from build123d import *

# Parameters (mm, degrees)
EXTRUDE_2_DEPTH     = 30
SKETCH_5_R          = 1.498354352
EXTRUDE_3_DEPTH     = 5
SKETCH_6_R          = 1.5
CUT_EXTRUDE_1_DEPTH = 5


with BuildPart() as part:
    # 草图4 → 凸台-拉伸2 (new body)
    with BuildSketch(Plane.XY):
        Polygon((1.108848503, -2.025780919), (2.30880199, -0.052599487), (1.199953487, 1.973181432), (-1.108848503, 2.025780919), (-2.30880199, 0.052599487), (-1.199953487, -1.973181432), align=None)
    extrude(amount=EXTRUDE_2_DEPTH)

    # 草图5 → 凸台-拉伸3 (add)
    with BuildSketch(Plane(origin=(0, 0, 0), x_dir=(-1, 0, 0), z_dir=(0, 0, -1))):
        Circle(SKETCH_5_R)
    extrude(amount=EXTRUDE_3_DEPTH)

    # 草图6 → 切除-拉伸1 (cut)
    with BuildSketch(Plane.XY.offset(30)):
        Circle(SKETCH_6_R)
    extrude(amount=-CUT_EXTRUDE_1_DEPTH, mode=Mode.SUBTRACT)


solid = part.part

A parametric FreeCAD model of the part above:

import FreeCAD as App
import Part
import Sketcher
from FreeCAD import Vector

doc = App.newDocument("Part")
body = doc.addObject("PartDesign::Body", "Body")

# Sketch on XY plane
sketch1 = body.newObject("Sketcher::SketchObject", "Sketch")
sketch1.AttachmentSupport = (doc.getObject("XY_Plane"), [""])
sketch1.MapMode = "FlatFace"
sketch1.addGeometry([
    Part.LineSegment(Vector(1.1, -2, 0), Vector(2.3, -0.1, 0)),  # 0
    Part.LineSegment(Vector(2.3, -0.1, 0), Vector(1.2, 2, 0)),  # 1
    Part.LineSegment(Vector(1.2, 2, 0), Vector(-1.1, 2, 0)),  # 2
    Part.LineSegment(Vector(-1.1, 2, 0), Vector(-2.3, 0.1, 0)),  # 3
    Part.LineSegment(Vector(-2.3, 0.1, 0), Vector(-1.2, -2, 0)),  # 4
    Part.LineSegment(Vector(-1.2, -2, 0), Vector(1.1, -2, 0)),  # 5
], False)
sketch1.addConstraint([
    Sketcher.Constraint("Coincident", 0, 2, 1, 1),
    Sketcher.Constraint("Coincident", 1, 2, 2, 1),
    Sketcher.Constraint("Coincident", 2, 2, 3, 1),
    Sketcher.Constraint("Coincident", 3, 2, 4, 1),
    Sketcher.Constraint("Coincident", 4, 2, 5, 1),
    Sketcher.Constraint("Coincident", 5, 2, 0, 1),
    Sketcher.Constraint("Symmetric", 0, 2, 3, 2, -1, 1),
    Sketcher.Constraint("Symmetric", 1, 2, 4, 2, -1, 1),
    Sketcher.Constraint("Symmetric", 2, 2, 5, 2, -1, 1),
    Sketcher.Constraint("Equal", 0, 1),
    Sketcher.Constraint("Equal", 1, 2),
    Sketcher.Constraint("Distance", 0, 2.309401),
    Sketcher.Constraint("DistanceX", -1, 1, 0, 2, 2.308802),
    Sketcher.Constraint("DistanceY", 0, 2, -1, 1, 0.052599),
    Sketcher.Constraint("DistanceX", 2, 2, 1, 2, 2.308802),
])
pad1 = body.newObject("PartDesign::Pad", "Pad")
pad1.Profile = sketch1
pad1.Length = 30

# Sketch on XY plane
sketch2 = body.newObject("Sketcher::SketchObject", "Sketch001")
sketch2.AttachmentSupport = (doc.getObject("XY_Plane"), [""])
sketch2.MapMode = "FlatFace"
sketch2.addGeometry(Part.Circle(Vector(0, 0, 0), Vector(0, 0, 1), 1.5), False)
sketch2.addConstraint([
    Sketcher.Constraint("Coincident", 0, 3, -1, 1),
    Sketcher.Constraint("Diameter", 0, 2.996709),
])
pad2 = body.newObject("PartDesign::Pad", "Pad001")
pad2.Profile = sketch2
pad2.Length = 5
pad2.Reversed = True

# Sketch on XY plane
sketch3 = body.newObject("Sketcher::SketchObject", "Sketch002")
sketch3.AttachmentSupport = (doc.getObject("XY_Plane"), [""])
sketch3.MapMode = "FlatFace"
sketch3.AttachmentOffset = App.Placement(Vector(0, 0, 30), App.Rotation())
sketch3.addGeometry(Part.Circle(Vector(0, 0, 0), Vector(0, 0, 1), 1.5), False)
sketch3.addConstraint([
    Sketcher.Constraint("Coincident", 0, 3, -1, 1),
    Sketcher.Constraint("Diameter", 0, 3.0),
])
pocket1 = body.newObject("PartDesign::Pocket", "Pocket")
pocket1.Profile = sketch3
pocket1.Length = 5

doc.recompute()
